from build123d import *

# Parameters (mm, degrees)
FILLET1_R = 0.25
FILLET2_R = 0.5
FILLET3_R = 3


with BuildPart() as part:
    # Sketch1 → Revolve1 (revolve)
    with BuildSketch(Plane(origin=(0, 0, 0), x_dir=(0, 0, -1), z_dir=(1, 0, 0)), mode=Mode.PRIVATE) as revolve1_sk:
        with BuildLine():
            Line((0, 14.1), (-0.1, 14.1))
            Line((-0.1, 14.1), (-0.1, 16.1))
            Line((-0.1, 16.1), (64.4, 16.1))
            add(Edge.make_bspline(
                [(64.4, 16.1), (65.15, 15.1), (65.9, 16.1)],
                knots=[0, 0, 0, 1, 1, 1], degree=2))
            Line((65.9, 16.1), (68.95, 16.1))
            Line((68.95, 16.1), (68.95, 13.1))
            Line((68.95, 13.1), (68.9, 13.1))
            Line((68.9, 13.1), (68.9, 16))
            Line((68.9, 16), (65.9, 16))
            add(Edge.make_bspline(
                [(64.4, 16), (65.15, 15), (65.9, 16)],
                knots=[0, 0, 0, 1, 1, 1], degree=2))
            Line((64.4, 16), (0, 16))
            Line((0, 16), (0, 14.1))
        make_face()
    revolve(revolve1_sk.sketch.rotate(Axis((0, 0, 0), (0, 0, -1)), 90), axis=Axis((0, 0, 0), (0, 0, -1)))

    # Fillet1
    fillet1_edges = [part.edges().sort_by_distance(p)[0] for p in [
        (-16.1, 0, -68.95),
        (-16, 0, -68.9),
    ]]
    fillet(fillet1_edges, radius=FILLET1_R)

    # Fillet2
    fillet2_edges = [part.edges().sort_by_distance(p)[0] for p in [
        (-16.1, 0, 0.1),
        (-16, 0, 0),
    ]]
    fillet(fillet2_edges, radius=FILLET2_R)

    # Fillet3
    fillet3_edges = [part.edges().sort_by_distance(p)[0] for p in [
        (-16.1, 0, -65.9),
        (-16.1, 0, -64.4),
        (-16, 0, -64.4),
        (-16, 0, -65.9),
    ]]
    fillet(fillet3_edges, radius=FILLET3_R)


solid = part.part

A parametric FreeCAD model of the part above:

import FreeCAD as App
import Part
import Sketcher


def edges_at(feature, points):
    """Names of the edges that pass closest to the given points."""
    edges = feature.Shape.Edges
    near = lambda p: min(range(len(edges)), key=lambda i: edges[i].distToShape(Part.Vertex(*p))[0])
    return sorted({f"Edge{near(p) + 1}" for p in points})

doc = App.newDocument("Part")
body = doc.addObject("PartDesign::Body", "Body")

# Sketch on YZ plane
sketch1 = body.newObject("Sketcher::SketchObject", "Sketch")
sketch1.AttachmentSupport = (doc.getObject("YZ_Plane"), [""])
sketch1.MapMode = "FlatFace"
sketch1.addGeometry(Part.LineSegment(App.Vector(14.1, 0.1, 0), App.Vector(14.1, 0, 0)), False)
sketch1.addGeometry(Part.LineSegment(App.Vector(14.1, 0, 0), App.Vector(16, 0, 0)), False)
sketch1.addGeometry(Part.LineSegment(App.Vector(16, 0, 0), App.Vector(16, -64.4, 0)), False)
sketch1.addGeometry(Part.BSplineCurve([App.Vector(16, -64.4, 0), App.Vector(15, -65.15, 0), App.Vector(16, -65.9, 0)], [3, 3], [0, 1], False, 2, [1, 1, 1], False), False)
sketch1.addGeometry(Part.LineSegment(App.Vector(16, -65.9, 0), App.Vector(16, -68.9, 0)), False)
sketch1.addGeometry(Part.LineSegment(App.Vector(16, -68.9, 0), App.Vector(13.1, -68.9, 0)), False)
sketch1.addGeometry(Part.LineSegment(App.Vector(13.1, -68.9, 0), App.Vector(13.1, -68.95, 0)), False)
sketch1.addGeometry(Part.LineSegment(App.Vector(13.1, -68.95, 0), App.Vector(16.1, -68.95, 0)), False)
sketch1.addGeometry(Part.LineSegment(App.Vector(16.1, -68.95, 0), App.Vector(16.1, -65.9, 0)), False)
sketch1.addGeometry(Part.BSplineCurve([App.Vector(16.1, -64.4, 0), App.Vector(15.1, -65.15, 0), App.Vector(16.1, -65.9, 0)], [3, 3], [0, 1], False, 2, [1, 1, 1], False), False)
sketch1.addGeometry(Part.LineSegment(App.Vector(16.1, -64.4, 0), App.Vector(16.1, 0.1, 0)), False)
sketch1.addGeometry(Part.LineSegment(App.Vector(16.1, 0.1, 0), App.Vector(14.1, 0.1, 0)), False)
sketch1.addConstraint(Sketcher.Constraint("Block", 3))
sketch1.addConstraint(Sketcher.Constraint("Block", 9))
sketch1.addConstraint(Sketcher.Constraint("Coincident", 0, 2, 1, 1))
sketch1.addConstraint(Sketcher.Constraint("Coincident", 1, 2, 2, 1))
sketch1.addConstraint(Sketcher.Constraint("Coincident", 2, 2, 3, 1))
sketch1.addConstraint(Sketcher.Constraint("Coincident", 3, 2, 4, 1))
sketch1.addConstraint(Sketcher.Constraint("Coincident", 4, 2, 5, 1))
sketch1.addConstraint(Sketcher.Constraint("Coincident", 5, 2, 6, 1))
sketch1.addConstraint(Sketcher.Constraint("Coincident", 6, 2, 7, 1))
sketch1.addConstraint(Sketcher.Constraint("Coincident", 7, 2, 8, 1))
sketch1.addConstraint(Sketcher.Constraint("Coincident", 8, 2, 9, 2))
sketch1.addConstraint(Sketcher.Constraint("Coincident", 9, 1, 10, 1))
sketch1.addConstraint(Sketcher.Constraint("Coincident", 10, 2, 11, 1))
sketch1.addConstraint(Sketcher.Constraint("Coincident", 11, 2, 0, 1))
sketch1.addConstraint(Sketcher.Constraint("Vertical", 0))
sketch1.addConstraint(Sketcher.Constraint("Horizontal", 1))
sketch1.addConstraint(Sketcher.Constraint("Vertical", 2))
sketch1.addConstraint(Sketcher.Constraint("Vertical", 4))
sketch1.addConstraint(Sketcher.Constraint("Horizontal", 5))
sketch1.addConstraint(Sketcher.Constraint("Vertical", 6))
sketch1.addConstraint(Sketcher.Constraint("Horizontal", 7))
sketch1.addConstraint(Sketcher.Constraint("Vertical", 8))
sketch1.addConstraint(Sketcher.Constraint("Vertical", 10))
sketch1.addConstraint(Sketcher.Constraint("Horizontal", 11))
sketch1.addConstraint(Sketcher.Constraint("PointOnObject", 0, 2, -1))
sketch1.addConstraint(Sketcher.Constraint("Equal", 7, 4))
sketch1.addConstraint(Sketcher.Constraint("DistanceX", 7, 1, 7, 2, 3.0))
sketch1.addConstraint(Sketcher.Constraint("DistanceX", 11, 2, 11, 1, 2.0))
sketch1.addConstraint(Sketcher.Constraint("DistanceY", 0, 2, 0, 1, 0.1))
sketch1.addConstraint(Sketcher.Constraint("DistanceY", 6, 2, 6, 1, 0.05))
revolution = body.newObject("PartDesign::Revolution", "Revolution")
revolution.Profile = sketch1
revolution.ReferenceAxis = (sketch1, ["V_Axis"])
revolution.Angle = 360
doc.recompute()

fillet = body.newObject("PartDesign::Fillet", "Fillet")
fillet.Base = (revolution, edges_at(revolution, [(-16.1, 0, -68.95), (-16, 0, -68.9)]))
fillet.Radius = 0.25
doc.recompute()

fillet2 = body.newObject("PartDesign::Fillet", "Fillet001")
fillet2.Base = (fillet, edges_at(fillet, [(-16.1, 0, 0.1), (-16, 0, 0)]))
fillet2.Radius = 0.5
doc.recompute()

fillet3 = body.newObject("PartDesign::Fillet", "Fillet002")
fillet3.Base = (fillet2, edges_at(fillet2, [
    (-16.1, 0, -65.9),
    (-16.1, 0, -64.4),
    (-16, 0, -64.4),
    (-16, 0, -65.9),
]))
fillet3.Radius = 3

doc.recompute()
